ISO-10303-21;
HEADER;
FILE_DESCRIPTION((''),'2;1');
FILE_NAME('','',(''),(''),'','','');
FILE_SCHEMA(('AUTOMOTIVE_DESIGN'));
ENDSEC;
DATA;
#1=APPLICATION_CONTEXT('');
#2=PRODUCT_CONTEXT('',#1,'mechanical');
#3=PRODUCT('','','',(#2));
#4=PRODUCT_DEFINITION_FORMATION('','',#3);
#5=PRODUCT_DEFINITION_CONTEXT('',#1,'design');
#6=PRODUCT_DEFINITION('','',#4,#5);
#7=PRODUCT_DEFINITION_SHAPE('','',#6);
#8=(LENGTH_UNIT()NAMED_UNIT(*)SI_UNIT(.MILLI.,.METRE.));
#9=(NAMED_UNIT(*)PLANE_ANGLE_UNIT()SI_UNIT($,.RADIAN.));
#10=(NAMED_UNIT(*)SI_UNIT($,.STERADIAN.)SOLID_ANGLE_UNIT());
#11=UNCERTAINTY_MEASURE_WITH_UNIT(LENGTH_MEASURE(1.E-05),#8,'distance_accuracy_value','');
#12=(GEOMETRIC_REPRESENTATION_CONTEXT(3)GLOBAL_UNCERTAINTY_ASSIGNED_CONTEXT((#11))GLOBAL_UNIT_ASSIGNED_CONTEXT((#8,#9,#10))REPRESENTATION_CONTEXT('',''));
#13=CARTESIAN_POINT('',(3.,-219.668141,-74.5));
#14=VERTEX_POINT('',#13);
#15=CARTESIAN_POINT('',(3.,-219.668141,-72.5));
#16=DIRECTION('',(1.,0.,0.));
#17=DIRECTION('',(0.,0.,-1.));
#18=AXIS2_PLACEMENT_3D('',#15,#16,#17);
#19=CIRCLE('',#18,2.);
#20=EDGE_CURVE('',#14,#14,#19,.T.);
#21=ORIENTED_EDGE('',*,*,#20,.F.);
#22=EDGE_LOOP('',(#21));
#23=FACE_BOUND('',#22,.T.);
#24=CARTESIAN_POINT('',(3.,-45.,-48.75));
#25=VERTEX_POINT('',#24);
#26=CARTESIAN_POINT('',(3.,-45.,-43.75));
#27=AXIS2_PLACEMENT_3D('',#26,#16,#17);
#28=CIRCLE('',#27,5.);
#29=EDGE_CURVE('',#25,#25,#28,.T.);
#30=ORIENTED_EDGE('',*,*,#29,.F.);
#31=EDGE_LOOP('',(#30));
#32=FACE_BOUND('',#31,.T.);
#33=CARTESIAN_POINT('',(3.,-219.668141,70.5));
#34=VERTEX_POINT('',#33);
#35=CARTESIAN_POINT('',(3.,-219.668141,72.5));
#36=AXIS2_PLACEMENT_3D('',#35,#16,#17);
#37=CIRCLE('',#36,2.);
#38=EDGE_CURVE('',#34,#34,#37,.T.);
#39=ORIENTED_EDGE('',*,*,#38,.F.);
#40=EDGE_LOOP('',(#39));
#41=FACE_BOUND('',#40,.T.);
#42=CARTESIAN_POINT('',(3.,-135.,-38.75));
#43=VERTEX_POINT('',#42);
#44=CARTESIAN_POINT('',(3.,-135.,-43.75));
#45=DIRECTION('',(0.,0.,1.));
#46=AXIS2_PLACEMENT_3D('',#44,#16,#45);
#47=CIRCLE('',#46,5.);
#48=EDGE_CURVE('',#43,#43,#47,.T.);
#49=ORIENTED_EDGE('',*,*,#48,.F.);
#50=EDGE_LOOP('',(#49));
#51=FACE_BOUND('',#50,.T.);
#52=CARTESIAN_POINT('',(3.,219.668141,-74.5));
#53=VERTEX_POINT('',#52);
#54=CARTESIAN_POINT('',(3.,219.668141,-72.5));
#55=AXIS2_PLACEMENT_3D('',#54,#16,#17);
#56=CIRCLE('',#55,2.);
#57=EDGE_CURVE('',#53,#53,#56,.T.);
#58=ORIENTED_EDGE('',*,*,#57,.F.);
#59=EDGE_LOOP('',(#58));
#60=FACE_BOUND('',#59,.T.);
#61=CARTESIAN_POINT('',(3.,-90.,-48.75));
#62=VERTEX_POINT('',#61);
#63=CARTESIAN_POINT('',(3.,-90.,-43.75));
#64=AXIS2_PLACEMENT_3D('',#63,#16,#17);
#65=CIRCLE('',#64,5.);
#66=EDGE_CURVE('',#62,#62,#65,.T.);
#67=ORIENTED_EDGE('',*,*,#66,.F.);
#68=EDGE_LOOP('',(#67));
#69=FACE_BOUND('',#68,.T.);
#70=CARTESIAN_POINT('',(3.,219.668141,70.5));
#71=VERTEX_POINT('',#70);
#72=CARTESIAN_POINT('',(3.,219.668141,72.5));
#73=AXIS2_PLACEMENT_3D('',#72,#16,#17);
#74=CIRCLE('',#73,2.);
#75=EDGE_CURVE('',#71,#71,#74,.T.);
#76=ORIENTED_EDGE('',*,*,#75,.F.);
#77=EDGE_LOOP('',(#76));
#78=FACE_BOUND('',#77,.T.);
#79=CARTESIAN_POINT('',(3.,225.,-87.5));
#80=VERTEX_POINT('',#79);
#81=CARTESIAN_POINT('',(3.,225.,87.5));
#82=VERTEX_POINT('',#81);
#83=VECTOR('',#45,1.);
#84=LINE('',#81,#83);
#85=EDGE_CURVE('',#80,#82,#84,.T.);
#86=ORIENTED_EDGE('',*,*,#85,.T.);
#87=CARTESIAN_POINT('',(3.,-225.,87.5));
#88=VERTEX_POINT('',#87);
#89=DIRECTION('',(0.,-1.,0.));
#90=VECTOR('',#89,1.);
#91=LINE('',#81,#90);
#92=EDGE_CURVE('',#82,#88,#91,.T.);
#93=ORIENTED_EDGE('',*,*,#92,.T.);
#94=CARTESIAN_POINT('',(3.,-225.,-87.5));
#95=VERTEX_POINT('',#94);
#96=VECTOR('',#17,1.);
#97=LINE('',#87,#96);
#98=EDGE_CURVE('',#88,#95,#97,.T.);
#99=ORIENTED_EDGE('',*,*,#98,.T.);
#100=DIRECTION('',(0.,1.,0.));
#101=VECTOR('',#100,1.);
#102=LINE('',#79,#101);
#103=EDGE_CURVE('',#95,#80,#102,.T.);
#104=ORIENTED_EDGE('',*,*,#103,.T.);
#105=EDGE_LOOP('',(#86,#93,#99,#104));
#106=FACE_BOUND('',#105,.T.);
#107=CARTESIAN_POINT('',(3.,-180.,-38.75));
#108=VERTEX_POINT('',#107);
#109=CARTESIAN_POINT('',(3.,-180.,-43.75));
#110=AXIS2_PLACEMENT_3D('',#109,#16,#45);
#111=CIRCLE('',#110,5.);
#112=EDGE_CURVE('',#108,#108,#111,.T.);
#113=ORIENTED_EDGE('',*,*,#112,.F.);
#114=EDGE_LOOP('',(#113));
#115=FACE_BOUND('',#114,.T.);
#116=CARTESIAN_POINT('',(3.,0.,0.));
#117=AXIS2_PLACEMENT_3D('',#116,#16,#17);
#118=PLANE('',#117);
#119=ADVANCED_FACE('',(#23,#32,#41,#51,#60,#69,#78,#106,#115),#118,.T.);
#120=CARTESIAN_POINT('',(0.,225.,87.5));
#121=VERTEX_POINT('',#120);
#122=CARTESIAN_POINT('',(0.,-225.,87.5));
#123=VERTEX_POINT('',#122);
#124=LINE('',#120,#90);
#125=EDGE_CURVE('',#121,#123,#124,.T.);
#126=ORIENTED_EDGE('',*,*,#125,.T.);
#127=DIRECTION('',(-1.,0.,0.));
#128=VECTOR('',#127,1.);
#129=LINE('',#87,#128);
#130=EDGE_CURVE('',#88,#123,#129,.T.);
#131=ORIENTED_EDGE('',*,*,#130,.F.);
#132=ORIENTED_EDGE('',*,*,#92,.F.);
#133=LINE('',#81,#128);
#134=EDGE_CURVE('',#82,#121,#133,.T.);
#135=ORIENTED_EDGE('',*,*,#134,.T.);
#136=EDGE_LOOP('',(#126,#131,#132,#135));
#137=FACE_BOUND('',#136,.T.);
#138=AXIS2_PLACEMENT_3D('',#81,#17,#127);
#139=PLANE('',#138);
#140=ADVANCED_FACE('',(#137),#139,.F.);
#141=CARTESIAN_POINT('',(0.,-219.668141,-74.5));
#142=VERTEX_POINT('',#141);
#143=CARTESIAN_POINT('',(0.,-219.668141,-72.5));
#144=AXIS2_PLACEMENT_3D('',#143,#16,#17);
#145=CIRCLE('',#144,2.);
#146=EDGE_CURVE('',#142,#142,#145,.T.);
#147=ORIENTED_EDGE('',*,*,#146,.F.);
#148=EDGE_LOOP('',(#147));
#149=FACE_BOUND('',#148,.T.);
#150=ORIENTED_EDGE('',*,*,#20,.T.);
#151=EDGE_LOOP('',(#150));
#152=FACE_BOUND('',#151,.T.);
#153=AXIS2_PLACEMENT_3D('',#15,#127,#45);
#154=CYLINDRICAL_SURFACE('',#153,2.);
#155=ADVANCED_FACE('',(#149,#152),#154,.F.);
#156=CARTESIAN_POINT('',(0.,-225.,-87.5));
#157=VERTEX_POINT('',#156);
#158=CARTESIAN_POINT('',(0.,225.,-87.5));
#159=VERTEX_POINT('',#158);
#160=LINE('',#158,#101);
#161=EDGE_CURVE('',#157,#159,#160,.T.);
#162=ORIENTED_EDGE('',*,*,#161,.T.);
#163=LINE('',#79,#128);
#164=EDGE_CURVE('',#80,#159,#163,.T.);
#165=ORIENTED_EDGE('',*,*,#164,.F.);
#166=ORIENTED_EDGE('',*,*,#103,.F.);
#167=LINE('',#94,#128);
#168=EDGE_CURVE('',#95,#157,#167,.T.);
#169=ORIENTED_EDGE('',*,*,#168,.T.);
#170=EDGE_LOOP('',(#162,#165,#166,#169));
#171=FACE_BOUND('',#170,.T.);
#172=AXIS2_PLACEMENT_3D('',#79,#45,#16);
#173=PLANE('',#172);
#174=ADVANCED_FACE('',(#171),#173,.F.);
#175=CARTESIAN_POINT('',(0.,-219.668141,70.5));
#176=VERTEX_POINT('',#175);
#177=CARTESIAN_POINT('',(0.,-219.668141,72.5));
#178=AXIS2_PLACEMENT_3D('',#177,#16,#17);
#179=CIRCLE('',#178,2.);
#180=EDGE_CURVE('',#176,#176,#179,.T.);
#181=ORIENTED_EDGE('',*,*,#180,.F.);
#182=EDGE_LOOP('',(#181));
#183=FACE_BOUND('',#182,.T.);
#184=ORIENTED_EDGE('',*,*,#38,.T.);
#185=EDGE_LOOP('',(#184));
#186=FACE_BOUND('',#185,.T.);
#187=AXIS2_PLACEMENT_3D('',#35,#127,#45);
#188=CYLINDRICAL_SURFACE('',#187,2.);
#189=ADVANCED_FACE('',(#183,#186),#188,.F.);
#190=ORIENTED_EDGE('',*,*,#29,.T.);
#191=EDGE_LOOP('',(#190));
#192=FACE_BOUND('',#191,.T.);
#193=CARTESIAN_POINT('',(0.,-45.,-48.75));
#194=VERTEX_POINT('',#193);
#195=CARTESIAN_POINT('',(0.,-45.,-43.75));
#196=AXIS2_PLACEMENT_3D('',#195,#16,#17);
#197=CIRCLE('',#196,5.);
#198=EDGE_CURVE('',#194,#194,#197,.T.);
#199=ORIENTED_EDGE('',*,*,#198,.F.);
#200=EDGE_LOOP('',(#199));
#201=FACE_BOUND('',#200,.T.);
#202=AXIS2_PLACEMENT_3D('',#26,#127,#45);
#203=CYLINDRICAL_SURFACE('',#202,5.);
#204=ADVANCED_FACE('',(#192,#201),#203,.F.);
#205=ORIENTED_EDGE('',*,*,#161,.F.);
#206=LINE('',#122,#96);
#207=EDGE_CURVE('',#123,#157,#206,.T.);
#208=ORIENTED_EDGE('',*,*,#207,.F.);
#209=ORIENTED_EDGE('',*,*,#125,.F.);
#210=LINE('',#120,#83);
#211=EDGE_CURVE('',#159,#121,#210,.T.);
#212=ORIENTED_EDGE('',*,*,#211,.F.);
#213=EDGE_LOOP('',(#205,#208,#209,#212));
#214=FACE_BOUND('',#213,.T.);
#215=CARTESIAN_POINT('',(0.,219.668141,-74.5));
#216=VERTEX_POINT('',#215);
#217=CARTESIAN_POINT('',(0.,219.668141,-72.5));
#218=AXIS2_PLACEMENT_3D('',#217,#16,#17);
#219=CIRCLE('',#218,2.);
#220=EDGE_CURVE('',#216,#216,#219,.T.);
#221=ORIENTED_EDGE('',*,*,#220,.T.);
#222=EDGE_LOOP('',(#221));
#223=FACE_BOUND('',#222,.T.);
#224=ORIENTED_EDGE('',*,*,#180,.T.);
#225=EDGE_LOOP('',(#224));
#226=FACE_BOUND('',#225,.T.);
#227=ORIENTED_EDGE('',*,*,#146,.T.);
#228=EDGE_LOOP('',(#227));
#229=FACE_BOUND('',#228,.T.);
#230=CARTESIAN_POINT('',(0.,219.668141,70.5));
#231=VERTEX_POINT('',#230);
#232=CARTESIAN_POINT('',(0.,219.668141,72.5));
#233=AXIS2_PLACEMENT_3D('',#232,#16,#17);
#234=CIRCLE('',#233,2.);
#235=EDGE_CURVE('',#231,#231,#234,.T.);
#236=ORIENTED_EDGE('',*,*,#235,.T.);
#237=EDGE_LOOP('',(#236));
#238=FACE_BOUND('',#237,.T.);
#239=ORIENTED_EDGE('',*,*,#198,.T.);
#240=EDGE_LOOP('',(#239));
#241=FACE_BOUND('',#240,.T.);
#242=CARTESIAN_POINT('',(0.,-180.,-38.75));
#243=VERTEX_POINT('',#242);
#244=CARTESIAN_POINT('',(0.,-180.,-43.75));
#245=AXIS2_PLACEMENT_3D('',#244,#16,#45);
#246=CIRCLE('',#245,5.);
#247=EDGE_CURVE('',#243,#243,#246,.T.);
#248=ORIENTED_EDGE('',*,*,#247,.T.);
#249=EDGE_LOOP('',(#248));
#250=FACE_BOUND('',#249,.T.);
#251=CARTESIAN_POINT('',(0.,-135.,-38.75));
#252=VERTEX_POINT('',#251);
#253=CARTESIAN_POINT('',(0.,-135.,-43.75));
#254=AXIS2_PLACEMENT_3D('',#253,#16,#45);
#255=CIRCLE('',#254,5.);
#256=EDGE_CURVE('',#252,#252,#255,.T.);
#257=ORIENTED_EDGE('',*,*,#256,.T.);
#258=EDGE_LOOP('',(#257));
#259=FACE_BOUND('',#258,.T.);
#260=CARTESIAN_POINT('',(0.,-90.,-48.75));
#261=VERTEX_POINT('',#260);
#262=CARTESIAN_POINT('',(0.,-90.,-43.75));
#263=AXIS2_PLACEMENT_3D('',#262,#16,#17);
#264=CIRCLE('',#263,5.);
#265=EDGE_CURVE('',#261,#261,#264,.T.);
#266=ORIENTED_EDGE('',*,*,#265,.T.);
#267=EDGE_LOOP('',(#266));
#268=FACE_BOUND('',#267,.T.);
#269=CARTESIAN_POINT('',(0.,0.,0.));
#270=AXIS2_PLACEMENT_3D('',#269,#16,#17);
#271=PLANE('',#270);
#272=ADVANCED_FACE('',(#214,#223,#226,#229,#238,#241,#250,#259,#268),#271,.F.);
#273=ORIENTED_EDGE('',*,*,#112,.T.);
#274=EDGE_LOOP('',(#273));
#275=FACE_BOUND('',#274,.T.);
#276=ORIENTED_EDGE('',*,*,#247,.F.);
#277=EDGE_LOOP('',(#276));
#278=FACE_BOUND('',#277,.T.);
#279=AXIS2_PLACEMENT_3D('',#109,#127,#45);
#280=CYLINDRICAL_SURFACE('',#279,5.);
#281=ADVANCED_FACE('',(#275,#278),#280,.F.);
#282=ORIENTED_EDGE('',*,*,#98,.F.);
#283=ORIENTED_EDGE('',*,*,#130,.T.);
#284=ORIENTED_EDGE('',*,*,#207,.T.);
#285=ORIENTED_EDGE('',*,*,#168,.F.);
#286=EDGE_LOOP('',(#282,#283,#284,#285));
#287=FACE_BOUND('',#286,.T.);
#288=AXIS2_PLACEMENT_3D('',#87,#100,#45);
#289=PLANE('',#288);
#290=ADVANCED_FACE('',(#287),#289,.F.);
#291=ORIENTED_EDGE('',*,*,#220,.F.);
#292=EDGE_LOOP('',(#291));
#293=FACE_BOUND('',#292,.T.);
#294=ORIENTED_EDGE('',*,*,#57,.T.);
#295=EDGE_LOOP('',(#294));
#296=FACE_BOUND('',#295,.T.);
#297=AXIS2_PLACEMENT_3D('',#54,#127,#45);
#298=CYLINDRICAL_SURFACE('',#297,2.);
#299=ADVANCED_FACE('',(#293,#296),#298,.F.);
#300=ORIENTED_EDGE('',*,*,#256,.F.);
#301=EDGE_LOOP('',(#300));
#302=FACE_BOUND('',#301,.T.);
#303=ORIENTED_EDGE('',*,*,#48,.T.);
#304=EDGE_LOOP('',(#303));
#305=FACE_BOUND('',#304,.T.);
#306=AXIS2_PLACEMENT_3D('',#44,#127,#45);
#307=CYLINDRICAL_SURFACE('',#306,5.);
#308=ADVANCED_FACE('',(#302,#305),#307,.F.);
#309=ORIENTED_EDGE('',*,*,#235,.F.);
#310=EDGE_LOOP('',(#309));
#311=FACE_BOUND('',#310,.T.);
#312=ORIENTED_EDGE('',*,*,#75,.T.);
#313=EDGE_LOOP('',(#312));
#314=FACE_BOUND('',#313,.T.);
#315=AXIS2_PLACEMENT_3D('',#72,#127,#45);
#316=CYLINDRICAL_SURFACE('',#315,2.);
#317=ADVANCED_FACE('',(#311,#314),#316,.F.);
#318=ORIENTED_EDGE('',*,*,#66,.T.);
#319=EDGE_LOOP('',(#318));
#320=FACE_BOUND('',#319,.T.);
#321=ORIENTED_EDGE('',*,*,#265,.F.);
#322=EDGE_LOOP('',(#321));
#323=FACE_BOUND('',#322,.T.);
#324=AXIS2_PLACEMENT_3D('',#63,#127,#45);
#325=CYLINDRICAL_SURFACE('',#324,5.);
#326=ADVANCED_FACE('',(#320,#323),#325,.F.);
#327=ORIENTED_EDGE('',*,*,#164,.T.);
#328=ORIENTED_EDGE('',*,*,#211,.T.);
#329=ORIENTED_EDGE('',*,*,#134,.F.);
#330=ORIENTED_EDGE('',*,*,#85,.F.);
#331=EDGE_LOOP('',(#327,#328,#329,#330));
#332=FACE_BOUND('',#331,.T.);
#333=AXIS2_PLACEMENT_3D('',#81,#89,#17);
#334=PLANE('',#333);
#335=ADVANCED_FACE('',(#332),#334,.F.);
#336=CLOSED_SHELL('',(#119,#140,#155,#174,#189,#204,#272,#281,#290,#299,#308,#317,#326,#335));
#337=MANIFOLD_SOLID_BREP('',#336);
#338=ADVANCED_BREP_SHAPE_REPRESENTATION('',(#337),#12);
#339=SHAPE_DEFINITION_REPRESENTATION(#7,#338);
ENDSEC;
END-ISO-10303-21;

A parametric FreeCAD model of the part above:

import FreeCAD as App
import Part
import Sketcher
from FreeCAD import Vector
Q = App.Units.Quantity


def add_polygon(sketch, points):
    """Adds a closed chain of lines whose ends are joined by coincident constraints."""
    first, n = sketch.GeometryCount, len(points)
    for a, b in zip(points, points[1:] + points[:1]):
        sketch.addGeometry(Part.LineSegment(App.Vector(*a, 0), App.Vector(*b, 0)), False)
    for i in range(n):
        sketch.addConstraint(Sketcher.Constraint("Coincident", first + i, 2, first + (i + 1) % n, 1))

doc = App.newDocument("Part")
params = doc.addObject("Spreadsheet::Sheet", "Params")
for row, (alias, value) in enumerate([
    ("sketch1_diameter", "4 mm"),
    ("sketch1_width", "450 mm"),
    ("sketch1_height", "175 mm"),
    ("pad1_length", "3 mm"),
    ("sketch2_diameter", "10 mm"),
], start=1):
    params.set(f"A{row}", alias)
    params.set(f"B{row}", "=" + value)
    params.setAlias(f"B{row}", alias)

body = doc.addObject("PartDesign::Body", "Body")

# Sketch on YZ plane
sketch1 = body.newObject("Sketcher::SketchObject", "Sketch")
sketch1.AttachmentSupport = (doc.getObject("YZ_Plane"), [""])
sketch1.MapMode = "FlatFace"
add_polygon(sketch1, [(225, 87.5), (-225, 87.5), (-225, -87.5), (225, -87.5)])  # lines 0-3
sketch1.addGeometry(Part.Circle(Vector(-219.7, 72.5, 0), Vector(0, 0, 1), 2), False)  # 4
sketch1.addGeometry(Part.Circle(Vector(-219.7, -72.5, 0), Vector(0, 0, 1), 2), False)  # 5
sketch1.addGeometry(Part.Circle(Vector(219.7, 72.5, 0), Vector(0, 0, 1), 2), False)  # 6
sketch1.addGeometry(Part.Circle(Vector(219.7, -72.5, 0), Vector(0, 0, 1), 2), False)  # 7
sketch1.addConstraint(Sketcher.Constraint("Horizontal", 0))
sketch1.addConstraint(Sketcher.Constraint("Vertical", 1))
sketch1.addConstraint(Sketcher.Constraint("Horizontal", 2))
sketch1.addConstraint(Sketcher.Constraint("Vertical", 3))
sketch1.addConstraint(Sketcher.Constraint("Equal", 4, 5))
sketch1.addConstraint(Sketcher.Constraint("Equal", 5, 6))
sketch1.addConstraint(Sketcher.Constraint("Equal", 6, 7))
sketch1.addConstraint(Sketcher.Constraint("Symmetric", 5, 3, 6, 3, -1, 1))
sketch1.addConstraint(Sketcher.Constraint("Symmetric", 4, 3, 7, 3, -1, 1))
sketch1.addConstraint(Sketcher.Constraint("Symmetric", 0, 2, 2, 2, -1, 1))
sketch1.addConstraint(Sketcher.Constraint("Symmetric", 4, 3, 6, 3, -2))
sketch1.addConstraint(Sketcher.Constraint("Diameter", 4, Q("4 mm")))
sketch1.addConstraint(Sketcher.Constraint("DistanceX", 0, 2, 0, 1, Q("450 mm")))
sketch1.addConstraint(Sketcher.Constraint("DistanceY", 1, 2, 1, 1, Q("175 mm")))
sketch1.addConstraint(Sketcher.Constraint("DistanceY", 5, 3, 4, 3, Q("145 mm")))
sketch1.addConstraint(Sketcher.Constraint("DistanceX", 4, 3, -1, 1, Q("219.668141 mm")))
sketch1.setExpression("Constraints[15]", "Params.sketch1_diameter")
sketch1.setExpression("Constraints[16]", "Params.sketch1_width")
sketch1.setExpression("Constraints[17]", "Params.sketch1_height")
pad1 = body.newObject("PartDesign::Pad", "Pad")
pad1.Profile = sketch1
pad1.setExpression("Length", "Params.pad1_length")

# Sketch on YZ plane
sketch2 = body.newObject("Sketcher::SketchObject", "Sketch001")
sketch2.AttachmentSupport = (doc.getObject("YZ_Plane"), [""])
sketch2.MapMode = "FlatFace"
sketch2.addGeometry(Part.Circle(Vector(-90, -44, 0), Vector(0, 0, 1), 5), False)
sketch2.addGeometry(Part.Circle(Vector(-45, -44, 0), Vector(0, 0, 1), 5), False)
sketch2.addGeometry(Part.Circle(Vector(-135, -44, 0), Vector(0, 0, 1), 5), False)
sketch2.addGeometry(Part.Circle(Vector(-180, -44, 0), Vector(0, 0, 1), 5), False)
sketch2.addConstraint(Sketcher.Constraint("Equal", 0, 1))
sketch2.addConstraint(Sketcher.Constraint("Equal", 1, 2))
sketch2.addConstraint(Sketcher.Constraint("Equal", 2, 3))
sketch2.addConstraint(Sketcher.Constraint("Horizontal", 0, 3, 1, 3))
sketch2.addConstraint(Sketcher.Constraint("Horizontal", 1, 3, 2, 3))
sketch2.addConstraint(Sketcher.Constraint("Horizontal", 2, 3, 3, 3))
sketch2.addConstraint(Sketcher.Constraint("Diameter", 0, Q("10 mm")))
sketch2.addConstraint(Sketcher.Constraint("DistanceX", 0, 3, -1, 1, Q("90 mm")))
sketch2.addConstraint(Sketcher.Constraint("DistanceX", 1, 3, -1, 1, Q("45 mm")))
sketch2.addConstraint(Sketcher.Constraint("DistanceX", 2, 3, -1, 1, Q("135 mm")))
sketch2.addConstraint(Sketcher.Constraint("DistanceX", 3, 3, -1, 1, Q("180 mm")))
sketch2.addConstraint(Sketcher.Constraint("DistanceY", 0, 3, -1, 1, Q("43.75 mm")))
sketch2.setExpression("Constraints[6]", "Params.sketch2_diameter")
pocket1 = body.newObject("PartDesign::Pocket", "Pocket")
pocket1.Profile = sketch2
pocket1.Type = "ThroughAll"
pocket1.Reversed = True

doc.recompute()
